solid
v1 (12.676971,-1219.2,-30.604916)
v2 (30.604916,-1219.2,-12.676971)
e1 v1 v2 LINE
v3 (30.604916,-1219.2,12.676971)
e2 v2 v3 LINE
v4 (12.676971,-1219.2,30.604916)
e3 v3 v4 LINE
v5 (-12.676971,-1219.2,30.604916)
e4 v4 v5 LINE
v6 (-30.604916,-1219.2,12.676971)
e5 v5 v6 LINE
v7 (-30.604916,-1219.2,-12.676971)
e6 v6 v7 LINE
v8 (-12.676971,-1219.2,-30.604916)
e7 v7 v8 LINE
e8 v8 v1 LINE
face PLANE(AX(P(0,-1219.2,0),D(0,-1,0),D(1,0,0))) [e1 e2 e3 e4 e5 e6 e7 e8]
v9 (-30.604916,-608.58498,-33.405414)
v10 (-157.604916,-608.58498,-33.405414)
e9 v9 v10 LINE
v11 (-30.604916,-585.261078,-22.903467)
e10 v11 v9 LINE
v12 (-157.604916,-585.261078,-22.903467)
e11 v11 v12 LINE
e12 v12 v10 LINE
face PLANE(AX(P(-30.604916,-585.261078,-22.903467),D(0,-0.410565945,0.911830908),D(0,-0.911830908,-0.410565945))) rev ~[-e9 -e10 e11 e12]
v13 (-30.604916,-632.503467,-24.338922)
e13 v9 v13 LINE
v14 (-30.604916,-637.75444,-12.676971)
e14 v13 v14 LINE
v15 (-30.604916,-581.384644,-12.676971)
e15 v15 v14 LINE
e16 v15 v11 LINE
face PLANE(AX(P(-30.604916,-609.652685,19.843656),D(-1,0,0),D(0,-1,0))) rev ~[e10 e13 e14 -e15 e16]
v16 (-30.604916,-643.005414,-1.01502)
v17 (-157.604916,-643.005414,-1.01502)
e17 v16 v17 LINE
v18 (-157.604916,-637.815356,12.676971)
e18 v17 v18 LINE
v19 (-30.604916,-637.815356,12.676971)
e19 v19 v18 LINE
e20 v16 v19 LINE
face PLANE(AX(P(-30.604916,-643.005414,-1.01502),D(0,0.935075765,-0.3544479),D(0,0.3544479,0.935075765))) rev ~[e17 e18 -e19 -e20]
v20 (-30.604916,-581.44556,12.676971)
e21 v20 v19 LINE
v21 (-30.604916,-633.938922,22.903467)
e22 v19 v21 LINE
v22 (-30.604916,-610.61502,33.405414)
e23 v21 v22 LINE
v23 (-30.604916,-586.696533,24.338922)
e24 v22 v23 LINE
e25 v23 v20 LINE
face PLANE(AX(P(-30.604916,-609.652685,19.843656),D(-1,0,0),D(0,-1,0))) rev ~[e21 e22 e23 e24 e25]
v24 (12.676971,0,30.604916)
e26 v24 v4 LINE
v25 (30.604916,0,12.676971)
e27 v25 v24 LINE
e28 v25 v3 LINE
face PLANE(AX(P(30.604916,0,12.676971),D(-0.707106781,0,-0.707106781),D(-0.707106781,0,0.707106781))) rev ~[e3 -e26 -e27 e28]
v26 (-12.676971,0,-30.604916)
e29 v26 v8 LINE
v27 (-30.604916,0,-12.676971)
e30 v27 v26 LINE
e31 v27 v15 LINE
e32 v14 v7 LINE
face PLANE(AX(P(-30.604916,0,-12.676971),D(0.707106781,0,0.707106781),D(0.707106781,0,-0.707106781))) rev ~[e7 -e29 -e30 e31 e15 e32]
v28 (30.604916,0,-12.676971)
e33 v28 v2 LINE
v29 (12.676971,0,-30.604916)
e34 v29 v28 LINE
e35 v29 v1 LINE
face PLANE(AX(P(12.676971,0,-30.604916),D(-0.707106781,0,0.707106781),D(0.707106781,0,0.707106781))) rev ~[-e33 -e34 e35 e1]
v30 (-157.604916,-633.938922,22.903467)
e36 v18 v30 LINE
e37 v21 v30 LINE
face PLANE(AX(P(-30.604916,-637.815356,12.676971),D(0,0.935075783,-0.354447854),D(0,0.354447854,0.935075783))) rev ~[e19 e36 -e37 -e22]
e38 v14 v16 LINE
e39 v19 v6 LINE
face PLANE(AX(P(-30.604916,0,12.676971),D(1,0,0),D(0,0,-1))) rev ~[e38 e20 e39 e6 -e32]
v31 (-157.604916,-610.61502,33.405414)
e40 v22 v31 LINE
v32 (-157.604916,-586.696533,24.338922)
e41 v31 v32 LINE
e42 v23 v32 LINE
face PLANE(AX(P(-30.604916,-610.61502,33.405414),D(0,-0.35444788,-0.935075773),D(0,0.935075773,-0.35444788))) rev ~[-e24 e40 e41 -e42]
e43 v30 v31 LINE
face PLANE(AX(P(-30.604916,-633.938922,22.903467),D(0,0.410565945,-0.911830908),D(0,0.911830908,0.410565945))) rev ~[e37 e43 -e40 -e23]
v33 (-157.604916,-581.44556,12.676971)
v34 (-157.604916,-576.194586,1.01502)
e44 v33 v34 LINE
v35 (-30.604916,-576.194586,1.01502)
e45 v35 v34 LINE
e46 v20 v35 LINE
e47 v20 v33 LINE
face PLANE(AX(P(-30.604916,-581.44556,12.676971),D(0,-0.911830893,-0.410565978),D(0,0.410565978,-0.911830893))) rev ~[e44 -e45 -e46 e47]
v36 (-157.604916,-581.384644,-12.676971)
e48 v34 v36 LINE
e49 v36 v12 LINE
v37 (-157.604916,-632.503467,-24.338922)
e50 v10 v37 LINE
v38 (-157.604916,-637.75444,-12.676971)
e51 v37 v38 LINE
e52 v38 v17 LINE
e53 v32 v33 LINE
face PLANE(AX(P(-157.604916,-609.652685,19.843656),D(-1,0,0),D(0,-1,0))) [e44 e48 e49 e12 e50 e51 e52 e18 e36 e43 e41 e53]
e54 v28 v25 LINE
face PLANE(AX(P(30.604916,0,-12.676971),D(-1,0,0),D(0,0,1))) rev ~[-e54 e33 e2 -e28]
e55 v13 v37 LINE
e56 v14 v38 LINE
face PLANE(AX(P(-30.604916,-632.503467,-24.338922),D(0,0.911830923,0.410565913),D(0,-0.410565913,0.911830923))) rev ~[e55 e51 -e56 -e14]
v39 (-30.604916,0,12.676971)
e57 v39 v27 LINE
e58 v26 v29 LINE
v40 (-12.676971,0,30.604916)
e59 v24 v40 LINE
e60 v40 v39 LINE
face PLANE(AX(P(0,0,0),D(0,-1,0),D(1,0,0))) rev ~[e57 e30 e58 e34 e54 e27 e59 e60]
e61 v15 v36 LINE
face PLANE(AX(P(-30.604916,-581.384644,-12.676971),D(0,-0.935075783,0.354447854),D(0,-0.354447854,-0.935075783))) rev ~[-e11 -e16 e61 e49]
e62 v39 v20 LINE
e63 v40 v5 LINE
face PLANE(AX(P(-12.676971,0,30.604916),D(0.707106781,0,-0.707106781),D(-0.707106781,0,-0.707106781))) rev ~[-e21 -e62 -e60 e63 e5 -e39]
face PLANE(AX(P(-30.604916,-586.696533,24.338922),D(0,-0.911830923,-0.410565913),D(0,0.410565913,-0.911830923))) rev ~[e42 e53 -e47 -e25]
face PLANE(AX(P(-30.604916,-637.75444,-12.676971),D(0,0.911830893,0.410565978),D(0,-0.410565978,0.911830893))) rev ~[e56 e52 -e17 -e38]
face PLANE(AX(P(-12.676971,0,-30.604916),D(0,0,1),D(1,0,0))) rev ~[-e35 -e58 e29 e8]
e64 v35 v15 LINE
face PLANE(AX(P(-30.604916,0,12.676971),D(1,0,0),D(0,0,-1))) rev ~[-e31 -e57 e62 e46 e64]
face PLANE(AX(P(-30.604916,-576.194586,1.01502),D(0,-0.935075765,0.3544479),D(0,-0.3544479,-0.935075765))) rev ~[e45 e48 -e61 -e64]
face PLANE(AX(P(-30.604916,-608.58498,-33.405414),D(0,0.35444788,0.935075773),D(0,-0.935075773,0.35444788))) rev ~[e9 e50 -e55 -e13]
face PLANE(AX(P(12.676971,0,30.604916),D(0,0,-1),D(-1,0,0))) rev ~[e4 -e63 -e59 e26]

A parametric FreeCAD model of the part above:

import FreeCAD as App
import Part
import Sketcher
Q = App.Units.Quantity

doc = App.newDocument("Part")
params = doc.addObject("Spreadsheet::Sheet", "Params")
for row, (alias, value) in enumerate([
    ("pad1_length", "48 in"),
    ("pad2_length", "5 in"),
], start=1):
    params.set(f"A{row}", alias)
    params.set(f"B{row}", "=" + value)
    params.setAlias(f"B{row}", alias)

body = doc.addObject("PartDesign::Body", "Body")

# Sketch on XZ plane
sketch1 = body.newObject("Sketcher::SketchObject", "Sketch")
sketch1.AttachmentSupport = (doc.getObject("XZ_Plane"), [""])
sketch1.MapMode = "FlatFace"
sketch1.addGeometry(Part.LineSegment(App.Vector(31, -13, 0), App.Vector(31, 13, 0)), False)
sketch1.addGeometry(Part.LineSegment(App.Vector(31, 13, 0), App.Vector(13, 31, 0)), False)
sketch1.addGeometry(Part.LineSegment(App.Vector(13, 31, 0), App.Vector(-13, 31, 0)), False)
sketch1.addGeometry(Part.LineSegment(App.Vector(-13, 31, 0), App.Vector(-31, 13, 0)), False)
sketch1.addGeometry(Part.LineSegment(App.Vector(-31, 13, 0), App.Vector(-31, -13, 0)), False)
sketch1.addGeometry(Part.LineSegment(App.Vector(-31, -13, 0), App.Vector(-13, -31, 0)), False)
sketch1.addGeometry(Part.LineSegment(App.Vector(-13, -31, 0), App.Vector(13, -31, 0)), False)
sketch1.addGeometry(Part.LineSegment(App.Vector(13, -31, 0), App.Vector(31, -13, 0)), False)
sketch1.addConstraint(Sketcher.Constraint("Coincident", 0, 2, 1, 1))
sketch1.addConstraint(Sketcher.Constraint("Coincident", 1, 2, 2, 1))
sketch1.addConstraint(Sketcher.Constraint("Coincident", 2, 2, 3, 1))
sketch1.addConstraint(Sketcher.Constraint("Coincident", 3, 2, 4, 1))
sketch1.addConstraint(Sketcher.Constraint("Coincident", 4, 2, 5, 1))
sketch1.addConstraint(Sketcher.Constraint("Coincident", 5, 2, 6, 1))
sketch1.addConstraint(Sketcher.Constraint("Coincident", 6, 2, 7, 1))
sketch1.addConstraint(Sketcher.Constraint("Coincident", 7, 2, 0, 1))
sketch1.addConstraint(Sketcher.Constraint("Vertical", 0))
sketch1.addConstraint(Sketcher.Constraint("Horizontal", 2))
sketch1.addConstraint(Sketcher.Constraint("Vertical", 4))
sketch1.addConstraint(Sketcher.Constraint("Horizontal", 6))
sketch1.addConstraint(Sketcher.Constraint("Symmetric", 0, 2, 4, 2, -1, 1))
sketch1.addConstraint(Sketcher.Constraint("Symmetric", 1, 2, 5, 2, -1, 1))
sketch1.addConstraint(Sketcher.Constraint("Perpendicular", 1, 3))
sketch1.addConstraint(Sketcher.Constraint("Perpendicular", 5, 7))
sketch1.addConstraint(Sketcher.Constraint("Horizontal", 0, 2, 3, 2))
sketch1.addConstraint(Sketcher.Constraint("Horizontal", 4, 2, 7, 2))
sketch1.addConstraint(Sketcher.Constraint("Vertical", 2, 2, 5, 2))
sketch1.addConstraint(Sketcher.Constraint("Equal", 6, 0))
sketch1.addConstraint(Sketcher.Constraint("DistanceX", 2, 2, 2, 1, Q("25.353942 mm")))
sketch1.addConstraint(Sketcher.Constraint("Distance", 1, Q("25.353943 mm")))
pad1 = body.newObject("PartDesign::Pad", "Pad")
pad1.Profile = sketch1
pad1.setExpression("Length", "Params.pad1_length")

# Sketch on YZ plane
sketch2 = body.newObject("Sketcher::SketchObject", "Sketch001")
sketch2.AttachmentSupport = (doc.getObject("YZ_Plane"), [""])
sketch2.MapMode = "FlatFace"
sketch2.AttachmentOffset = App.Placement(App.Vector(0, 0, -30.604916), App.Rotation())
sketch2.addGeometry(Part.LineSegment(App.Vector(-638, 13, 0), App.Vector(-634, 23, 0)), False)
sketch2.addGeometry(Part.LineSegment(App.Vector(-634, 23, 0), App.Vector(-611, 33, 0)), False)
sketch2.addGeometry(Part.LineSegment(App.Vector(-611, 33, 0), App.Vector(-587, 24, 0)), False)
sketch2.addGeometry(Part.LineSegment(App.Vector(-587, 24, 0), App.Vector(-581, 13, 0)), False)
sketch2.addGeometry(Part.LineSegment(App.Vector(-581, 13, 0), App.Vector(-576, 1, 0)), False)
sketch2.addGeometry(Part.LineSegment(App.Vector(-576, 1, 0), App.Vector(-581, -13, 0)), False)
sketch2.addGeometry(Part.LineSegment(App.Vector(-581, -13, 0), App.Vector(-585, -23, 0)), False)
sketch2.addGeometry(Part.LineSegment(App.Vector(-585, -23, 0), App.Vector(-609, -33, 0)), False)
sketch2.addGeometry(Part.LineSegment(App.Vector(-609, -33, 0), App.Vector(-633, -24, 0)), False)
sketch2.addGeometry(Part.LineSegment(App.Vector(-633, -24, 0), App.Vector(-638, -13, 0)), False)
sketch2.addGeometry(Part.LineSegment(App.Vector(-638, -13, 0), App.Vector(-643, -1, 0)), False)
sketch2.addGeometry(Part.LineSegment(App.Vector(-643, -1, 0), App.Vector(-638, 13, 0)), False)
sketch2.addConstraint(Sketcher.Constraint("Coincident", 0, 2, 1, 1))
sketch2.addConstraint(Sketcher.Constraint("Coincident", 1, 2, 2, 1))
sketch2.addConstraint(Sketcher.Constraint("Coincident", 2, 2, 3, 1))
sketch2.addConstraint(Sketcher.Constraint("Coincident", 3, 2, 4, 1))
sketch2.addConstraint(Sketcher.Constraint("Coincident", 4, 2, 5, 1))
sketch2.addConstraint(Sketcher.Constraint("Coincident", 5, 2, 6, 1))
sketch2.addConstraint(Sketcher.Constraint("Coincident", 6, 2, 7, 1))
sketch2.addConstraint(Sketcher.Constraint("Coincident", 7, 2, 8, 1))
sketch2.addConstraint(Sketcher.Constraint("Coincident", 8, 2, 9, 1))
sketch2.addConstraint(Sketcher.Constraint("Coincident", 9, 2, 10, 1))
sketch2.addConstraint(Sketcher.Constraint("Coincident", 10, 2, 11, 1))
sketch2.addConstraint(Sketcher.Constraint("Coincident", 11, 2, 0, 1))
sketch2.addConstraint(Sketcher.Constraint("Perpendicular", 0, 2))
sketch2.addConstraint(Sketcher.Constraint("Perpendicular", 1, 3))
sketch2.addConstraint(Sketcher.Constraint("Parallel", 3, 4))
sketch2.addConstraint(Sketcher.Constraint("Perpendicular", 2, 5))
sketch2.addConstraint(Sketcher.Constraint("Parallel", 5, 6))
sketch2.addConstraint(Sketcher.Constraint("Perpendicular", 4, 7))
sketch2.addConstraint(Sketcher.Constraint("Perpendicular", 6, 8))
sketch2.addConstraint(Sketcher.Constraint("Perpendicular", 7, 9))
sketch2.addConstraint(Sketcher.Constraint("Parallel", 9, 10))
sketch2.addConstraint(Sketcher.Constraint("Perpendicular", 8, 11))
sketch2.addConstraint(Sketcher.Constraint("Horizontal", 5, 2, 9, 2))
sketch2.addConstraint(Sketcher.Constraint("Horizontal", 3, 2, 11, 2))
sketch2.addConstraint(Sketcher.Constraint("Equal", 1, 2))
sketch2.addConstraint(Sketcher.Constraint("Equal", 3, 4))
sketch2.addConstraint(Sketcher.Constraint("Equal", 0, 6))
sketch2.addConstraint(Sketcher.Constraint("Equal", 2, 7))
sketch2.addConstraint(Sketcher.Constraint("Equal", 7, 8))
sketch2.addConstraint(Sketcher.Constraint("Distance", 3, Q("12.789598 mm")))
sketch2.addConstraint(Sketcher.Constraint("DistanceX", 7, 2, 6, 2, Q("23.323902 mm")))
sketch2.addConstraint(Sketcher.Constraint("DistanceX", 0, 2, -1, 1, Q("633.938922 mm")))
sketch2.addConstraint(Sketcher.Constraint("DistanceY", -1, 1, 2, 2, Q("24.338922 mm")))
sketch2.addConstraint(Sketcher.Constraint("DistanceX", 3, 2, -1, 1, Q("581.44556 mm")))
sketch2.addConstraint(Sketcher.Constraint("DistanceY", -1, 1, 3, 2, Q("12.676971 mm")))
sketch2.addConstraint(Sketcher.Constraint("DistanceY", 5, 2, -1, 1, Q("12.676971 mm")))
pad2 = body.newObject("PartDesign::Pad", "Pad001")
pad2.Profile = sketch2
pad2.setExpression("Length", "Params.pad2_length")
pad2.Reversed = True

doc.recompute()
